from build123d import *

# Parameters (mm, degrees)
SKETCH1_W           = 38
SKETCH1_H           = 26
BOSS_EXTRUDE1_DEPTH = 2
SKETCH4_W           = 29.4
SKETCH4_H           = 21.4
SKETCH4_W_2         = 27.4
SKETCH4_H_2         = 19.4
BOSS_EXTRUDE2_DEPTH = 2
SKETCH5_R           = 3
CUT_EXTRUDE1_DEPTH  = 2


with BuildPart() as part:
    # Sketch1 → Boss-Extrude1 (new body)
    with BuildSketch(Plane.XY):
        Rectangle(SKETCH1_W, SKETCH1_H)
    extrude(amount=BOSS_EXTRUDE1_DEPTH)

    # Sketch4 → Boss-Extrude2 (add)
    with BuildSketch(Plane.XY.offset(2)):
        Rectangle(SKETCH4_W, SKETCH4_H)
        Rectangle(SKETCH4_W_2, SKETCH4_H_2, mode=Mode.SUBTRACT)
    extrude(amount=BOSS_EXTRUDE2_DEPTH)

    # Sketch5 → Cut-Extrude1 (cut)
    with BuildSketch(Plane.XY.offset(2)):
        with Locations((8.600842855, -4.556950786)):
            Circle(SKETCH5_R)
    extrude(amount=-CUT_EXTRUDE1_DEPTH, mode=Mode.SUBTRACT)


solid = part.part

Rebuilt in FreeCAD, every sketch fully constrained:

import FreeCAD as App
import Part
import Sketcher
Q = App.Units.Quantity


def add_polygon(sketch, points):
    """Adds a closed chain of lines whose ends are joined by coincident constraints."""
    first, n = sketch.GeometryCount, len(points)
    for a, b in zip(points, points[1:] + points[:1]):
        sketch.addGeometry(Part.LineSegment(App.Vector(*a, 0), App.Vector(*b, 0)), False)
    for i in range(n):
        sketch.addConstraint(Sketcher.Constraint("Coincident", first + i, 2, first + (i + 1) % n, 1))

doc = App.newDocument("Part")
body = doc.addObject("PartDesign::Body", "Body")

sketch1 = body.newObject("Sketcher::SketchObject", "Sketch")
sketch1.AttachmentSupport = (doc.getObject("XY_Plane"), [""])
sketch1.MapMode = "FlatFace"
add_polygon(sketch1, [(-19, 13), (-19, -13), (19, -13), (19, 13)])
sketch1.addConstraint([
    Sketcher.Constraint("Vertical", 0),
    Sketcher.Constraint("Horizontal", 1),
    Sketcher.Constraint("Vertical", 2),
    Sketcher.Constraint("Horizontal", 3),
    Sketcher.Constraint("Symmetric", 0, 2, 2, 2, -1, 1),
    Sketcher.Constraint("DistanceX", 1, 1, 1, 2, Q("38 mm")),
    Sketcher.Constraint("DistanceY", 0, 2, 0, 1, Q("26 mm")),
])
pad1 = body.newObject("PartDesign::Pad", "Pad")
pad1.Profile = sketch1
pad1.Length = 2

sketch2 = body.newObject("Sketcher::SketchObject", "Sketch001")
sketch2.AttachmentSupport = (doc.getObject("XY_Plane"), [""])
sketch2.MapMode = "FlatFace"
sketch2.AttachmentOffset = App.Placement(App.Vector(0, 0, 2), App.Rotation())
add_polygon(sketch2, [(-15, 11), (-15, -11), (15, -11), (15, 11)])
add_polygon(sketch2, [(14, -10), (-14, -10), (-14, 10), (14, 10)])
sketch2.addConstraint([
    Sketcher.Constraint("Vertical", 0),
    Sketcher.Constraint("Horizontal", 1),
    Sketcher.Constraint("Vertical", 2),
    Sketcher.Constraint("Horizontal", 3),
    Sketcher.Constraint("Horizontal", 4),
    Sketcher.Constraint("Vertical", 5),
    Sketcher.Constraint("Horizontal", 6),
    Sketcher.Constraint("Vertical", 7),
    Sketcher.Constraint("Symmetric", 0, 2, 2, 2, -1, 1),
    Sketcher.Constraint("Symmetric", 4, 2, 6, 2, -1, 1),
    Sketcher.Constraint("DistanceX", 1, 1, 1, 2, Q("29.4 mm")),
    Sketcher.Constraint("DistanceX", 4, 2, 4, 1, Q("27.4 mm")),
    Sketcher.Constraint("DistanceY", 0, 2, 0, 1, Q("21.4 mm")),
    Sketcher.Constraint("DistanceY", 5, 1, 5, 2, Q("19.4 mm")),
])
pad2 = body.newObject("PartDesign::Pad", "Pad001")
pad2.Profile = sketch2
pad2.Length = 2

sketch3 = body.newObject("Sketcher::SketchObject", "Sketch002")
sketch3.AttachmentSupport = (doc.getObject("XY_Plane"), [""])
sketch3.MapMode = "FlatFace"
sketch3.AttachmentOffset = App.Placement(App.Vector(0, 0, 2), App.Rotation())
sketch3.addGeometry(Part.Circle(App.Vector(8.6, -4.6, 0), App.Vector(0, 0, 1), 3), False)
sketch3.addConstraint([
    Sketcher.Constraint("Diameter", 0, Q("6 mm")),
    Sketcher.Constraint("DistanceY", 0, 3, -1, 1, Q("4.556951 mm")),
    Sketcher.Constraint("DistanceX", -1, 1, 0, 3, Q("8.600843 mm")),
])
pocket1 = body.newObject("PartDesign::Pocket", "Pocket")
pocket1.Profile = sketch3
pocket1.Length = 2

doc.recompute()
